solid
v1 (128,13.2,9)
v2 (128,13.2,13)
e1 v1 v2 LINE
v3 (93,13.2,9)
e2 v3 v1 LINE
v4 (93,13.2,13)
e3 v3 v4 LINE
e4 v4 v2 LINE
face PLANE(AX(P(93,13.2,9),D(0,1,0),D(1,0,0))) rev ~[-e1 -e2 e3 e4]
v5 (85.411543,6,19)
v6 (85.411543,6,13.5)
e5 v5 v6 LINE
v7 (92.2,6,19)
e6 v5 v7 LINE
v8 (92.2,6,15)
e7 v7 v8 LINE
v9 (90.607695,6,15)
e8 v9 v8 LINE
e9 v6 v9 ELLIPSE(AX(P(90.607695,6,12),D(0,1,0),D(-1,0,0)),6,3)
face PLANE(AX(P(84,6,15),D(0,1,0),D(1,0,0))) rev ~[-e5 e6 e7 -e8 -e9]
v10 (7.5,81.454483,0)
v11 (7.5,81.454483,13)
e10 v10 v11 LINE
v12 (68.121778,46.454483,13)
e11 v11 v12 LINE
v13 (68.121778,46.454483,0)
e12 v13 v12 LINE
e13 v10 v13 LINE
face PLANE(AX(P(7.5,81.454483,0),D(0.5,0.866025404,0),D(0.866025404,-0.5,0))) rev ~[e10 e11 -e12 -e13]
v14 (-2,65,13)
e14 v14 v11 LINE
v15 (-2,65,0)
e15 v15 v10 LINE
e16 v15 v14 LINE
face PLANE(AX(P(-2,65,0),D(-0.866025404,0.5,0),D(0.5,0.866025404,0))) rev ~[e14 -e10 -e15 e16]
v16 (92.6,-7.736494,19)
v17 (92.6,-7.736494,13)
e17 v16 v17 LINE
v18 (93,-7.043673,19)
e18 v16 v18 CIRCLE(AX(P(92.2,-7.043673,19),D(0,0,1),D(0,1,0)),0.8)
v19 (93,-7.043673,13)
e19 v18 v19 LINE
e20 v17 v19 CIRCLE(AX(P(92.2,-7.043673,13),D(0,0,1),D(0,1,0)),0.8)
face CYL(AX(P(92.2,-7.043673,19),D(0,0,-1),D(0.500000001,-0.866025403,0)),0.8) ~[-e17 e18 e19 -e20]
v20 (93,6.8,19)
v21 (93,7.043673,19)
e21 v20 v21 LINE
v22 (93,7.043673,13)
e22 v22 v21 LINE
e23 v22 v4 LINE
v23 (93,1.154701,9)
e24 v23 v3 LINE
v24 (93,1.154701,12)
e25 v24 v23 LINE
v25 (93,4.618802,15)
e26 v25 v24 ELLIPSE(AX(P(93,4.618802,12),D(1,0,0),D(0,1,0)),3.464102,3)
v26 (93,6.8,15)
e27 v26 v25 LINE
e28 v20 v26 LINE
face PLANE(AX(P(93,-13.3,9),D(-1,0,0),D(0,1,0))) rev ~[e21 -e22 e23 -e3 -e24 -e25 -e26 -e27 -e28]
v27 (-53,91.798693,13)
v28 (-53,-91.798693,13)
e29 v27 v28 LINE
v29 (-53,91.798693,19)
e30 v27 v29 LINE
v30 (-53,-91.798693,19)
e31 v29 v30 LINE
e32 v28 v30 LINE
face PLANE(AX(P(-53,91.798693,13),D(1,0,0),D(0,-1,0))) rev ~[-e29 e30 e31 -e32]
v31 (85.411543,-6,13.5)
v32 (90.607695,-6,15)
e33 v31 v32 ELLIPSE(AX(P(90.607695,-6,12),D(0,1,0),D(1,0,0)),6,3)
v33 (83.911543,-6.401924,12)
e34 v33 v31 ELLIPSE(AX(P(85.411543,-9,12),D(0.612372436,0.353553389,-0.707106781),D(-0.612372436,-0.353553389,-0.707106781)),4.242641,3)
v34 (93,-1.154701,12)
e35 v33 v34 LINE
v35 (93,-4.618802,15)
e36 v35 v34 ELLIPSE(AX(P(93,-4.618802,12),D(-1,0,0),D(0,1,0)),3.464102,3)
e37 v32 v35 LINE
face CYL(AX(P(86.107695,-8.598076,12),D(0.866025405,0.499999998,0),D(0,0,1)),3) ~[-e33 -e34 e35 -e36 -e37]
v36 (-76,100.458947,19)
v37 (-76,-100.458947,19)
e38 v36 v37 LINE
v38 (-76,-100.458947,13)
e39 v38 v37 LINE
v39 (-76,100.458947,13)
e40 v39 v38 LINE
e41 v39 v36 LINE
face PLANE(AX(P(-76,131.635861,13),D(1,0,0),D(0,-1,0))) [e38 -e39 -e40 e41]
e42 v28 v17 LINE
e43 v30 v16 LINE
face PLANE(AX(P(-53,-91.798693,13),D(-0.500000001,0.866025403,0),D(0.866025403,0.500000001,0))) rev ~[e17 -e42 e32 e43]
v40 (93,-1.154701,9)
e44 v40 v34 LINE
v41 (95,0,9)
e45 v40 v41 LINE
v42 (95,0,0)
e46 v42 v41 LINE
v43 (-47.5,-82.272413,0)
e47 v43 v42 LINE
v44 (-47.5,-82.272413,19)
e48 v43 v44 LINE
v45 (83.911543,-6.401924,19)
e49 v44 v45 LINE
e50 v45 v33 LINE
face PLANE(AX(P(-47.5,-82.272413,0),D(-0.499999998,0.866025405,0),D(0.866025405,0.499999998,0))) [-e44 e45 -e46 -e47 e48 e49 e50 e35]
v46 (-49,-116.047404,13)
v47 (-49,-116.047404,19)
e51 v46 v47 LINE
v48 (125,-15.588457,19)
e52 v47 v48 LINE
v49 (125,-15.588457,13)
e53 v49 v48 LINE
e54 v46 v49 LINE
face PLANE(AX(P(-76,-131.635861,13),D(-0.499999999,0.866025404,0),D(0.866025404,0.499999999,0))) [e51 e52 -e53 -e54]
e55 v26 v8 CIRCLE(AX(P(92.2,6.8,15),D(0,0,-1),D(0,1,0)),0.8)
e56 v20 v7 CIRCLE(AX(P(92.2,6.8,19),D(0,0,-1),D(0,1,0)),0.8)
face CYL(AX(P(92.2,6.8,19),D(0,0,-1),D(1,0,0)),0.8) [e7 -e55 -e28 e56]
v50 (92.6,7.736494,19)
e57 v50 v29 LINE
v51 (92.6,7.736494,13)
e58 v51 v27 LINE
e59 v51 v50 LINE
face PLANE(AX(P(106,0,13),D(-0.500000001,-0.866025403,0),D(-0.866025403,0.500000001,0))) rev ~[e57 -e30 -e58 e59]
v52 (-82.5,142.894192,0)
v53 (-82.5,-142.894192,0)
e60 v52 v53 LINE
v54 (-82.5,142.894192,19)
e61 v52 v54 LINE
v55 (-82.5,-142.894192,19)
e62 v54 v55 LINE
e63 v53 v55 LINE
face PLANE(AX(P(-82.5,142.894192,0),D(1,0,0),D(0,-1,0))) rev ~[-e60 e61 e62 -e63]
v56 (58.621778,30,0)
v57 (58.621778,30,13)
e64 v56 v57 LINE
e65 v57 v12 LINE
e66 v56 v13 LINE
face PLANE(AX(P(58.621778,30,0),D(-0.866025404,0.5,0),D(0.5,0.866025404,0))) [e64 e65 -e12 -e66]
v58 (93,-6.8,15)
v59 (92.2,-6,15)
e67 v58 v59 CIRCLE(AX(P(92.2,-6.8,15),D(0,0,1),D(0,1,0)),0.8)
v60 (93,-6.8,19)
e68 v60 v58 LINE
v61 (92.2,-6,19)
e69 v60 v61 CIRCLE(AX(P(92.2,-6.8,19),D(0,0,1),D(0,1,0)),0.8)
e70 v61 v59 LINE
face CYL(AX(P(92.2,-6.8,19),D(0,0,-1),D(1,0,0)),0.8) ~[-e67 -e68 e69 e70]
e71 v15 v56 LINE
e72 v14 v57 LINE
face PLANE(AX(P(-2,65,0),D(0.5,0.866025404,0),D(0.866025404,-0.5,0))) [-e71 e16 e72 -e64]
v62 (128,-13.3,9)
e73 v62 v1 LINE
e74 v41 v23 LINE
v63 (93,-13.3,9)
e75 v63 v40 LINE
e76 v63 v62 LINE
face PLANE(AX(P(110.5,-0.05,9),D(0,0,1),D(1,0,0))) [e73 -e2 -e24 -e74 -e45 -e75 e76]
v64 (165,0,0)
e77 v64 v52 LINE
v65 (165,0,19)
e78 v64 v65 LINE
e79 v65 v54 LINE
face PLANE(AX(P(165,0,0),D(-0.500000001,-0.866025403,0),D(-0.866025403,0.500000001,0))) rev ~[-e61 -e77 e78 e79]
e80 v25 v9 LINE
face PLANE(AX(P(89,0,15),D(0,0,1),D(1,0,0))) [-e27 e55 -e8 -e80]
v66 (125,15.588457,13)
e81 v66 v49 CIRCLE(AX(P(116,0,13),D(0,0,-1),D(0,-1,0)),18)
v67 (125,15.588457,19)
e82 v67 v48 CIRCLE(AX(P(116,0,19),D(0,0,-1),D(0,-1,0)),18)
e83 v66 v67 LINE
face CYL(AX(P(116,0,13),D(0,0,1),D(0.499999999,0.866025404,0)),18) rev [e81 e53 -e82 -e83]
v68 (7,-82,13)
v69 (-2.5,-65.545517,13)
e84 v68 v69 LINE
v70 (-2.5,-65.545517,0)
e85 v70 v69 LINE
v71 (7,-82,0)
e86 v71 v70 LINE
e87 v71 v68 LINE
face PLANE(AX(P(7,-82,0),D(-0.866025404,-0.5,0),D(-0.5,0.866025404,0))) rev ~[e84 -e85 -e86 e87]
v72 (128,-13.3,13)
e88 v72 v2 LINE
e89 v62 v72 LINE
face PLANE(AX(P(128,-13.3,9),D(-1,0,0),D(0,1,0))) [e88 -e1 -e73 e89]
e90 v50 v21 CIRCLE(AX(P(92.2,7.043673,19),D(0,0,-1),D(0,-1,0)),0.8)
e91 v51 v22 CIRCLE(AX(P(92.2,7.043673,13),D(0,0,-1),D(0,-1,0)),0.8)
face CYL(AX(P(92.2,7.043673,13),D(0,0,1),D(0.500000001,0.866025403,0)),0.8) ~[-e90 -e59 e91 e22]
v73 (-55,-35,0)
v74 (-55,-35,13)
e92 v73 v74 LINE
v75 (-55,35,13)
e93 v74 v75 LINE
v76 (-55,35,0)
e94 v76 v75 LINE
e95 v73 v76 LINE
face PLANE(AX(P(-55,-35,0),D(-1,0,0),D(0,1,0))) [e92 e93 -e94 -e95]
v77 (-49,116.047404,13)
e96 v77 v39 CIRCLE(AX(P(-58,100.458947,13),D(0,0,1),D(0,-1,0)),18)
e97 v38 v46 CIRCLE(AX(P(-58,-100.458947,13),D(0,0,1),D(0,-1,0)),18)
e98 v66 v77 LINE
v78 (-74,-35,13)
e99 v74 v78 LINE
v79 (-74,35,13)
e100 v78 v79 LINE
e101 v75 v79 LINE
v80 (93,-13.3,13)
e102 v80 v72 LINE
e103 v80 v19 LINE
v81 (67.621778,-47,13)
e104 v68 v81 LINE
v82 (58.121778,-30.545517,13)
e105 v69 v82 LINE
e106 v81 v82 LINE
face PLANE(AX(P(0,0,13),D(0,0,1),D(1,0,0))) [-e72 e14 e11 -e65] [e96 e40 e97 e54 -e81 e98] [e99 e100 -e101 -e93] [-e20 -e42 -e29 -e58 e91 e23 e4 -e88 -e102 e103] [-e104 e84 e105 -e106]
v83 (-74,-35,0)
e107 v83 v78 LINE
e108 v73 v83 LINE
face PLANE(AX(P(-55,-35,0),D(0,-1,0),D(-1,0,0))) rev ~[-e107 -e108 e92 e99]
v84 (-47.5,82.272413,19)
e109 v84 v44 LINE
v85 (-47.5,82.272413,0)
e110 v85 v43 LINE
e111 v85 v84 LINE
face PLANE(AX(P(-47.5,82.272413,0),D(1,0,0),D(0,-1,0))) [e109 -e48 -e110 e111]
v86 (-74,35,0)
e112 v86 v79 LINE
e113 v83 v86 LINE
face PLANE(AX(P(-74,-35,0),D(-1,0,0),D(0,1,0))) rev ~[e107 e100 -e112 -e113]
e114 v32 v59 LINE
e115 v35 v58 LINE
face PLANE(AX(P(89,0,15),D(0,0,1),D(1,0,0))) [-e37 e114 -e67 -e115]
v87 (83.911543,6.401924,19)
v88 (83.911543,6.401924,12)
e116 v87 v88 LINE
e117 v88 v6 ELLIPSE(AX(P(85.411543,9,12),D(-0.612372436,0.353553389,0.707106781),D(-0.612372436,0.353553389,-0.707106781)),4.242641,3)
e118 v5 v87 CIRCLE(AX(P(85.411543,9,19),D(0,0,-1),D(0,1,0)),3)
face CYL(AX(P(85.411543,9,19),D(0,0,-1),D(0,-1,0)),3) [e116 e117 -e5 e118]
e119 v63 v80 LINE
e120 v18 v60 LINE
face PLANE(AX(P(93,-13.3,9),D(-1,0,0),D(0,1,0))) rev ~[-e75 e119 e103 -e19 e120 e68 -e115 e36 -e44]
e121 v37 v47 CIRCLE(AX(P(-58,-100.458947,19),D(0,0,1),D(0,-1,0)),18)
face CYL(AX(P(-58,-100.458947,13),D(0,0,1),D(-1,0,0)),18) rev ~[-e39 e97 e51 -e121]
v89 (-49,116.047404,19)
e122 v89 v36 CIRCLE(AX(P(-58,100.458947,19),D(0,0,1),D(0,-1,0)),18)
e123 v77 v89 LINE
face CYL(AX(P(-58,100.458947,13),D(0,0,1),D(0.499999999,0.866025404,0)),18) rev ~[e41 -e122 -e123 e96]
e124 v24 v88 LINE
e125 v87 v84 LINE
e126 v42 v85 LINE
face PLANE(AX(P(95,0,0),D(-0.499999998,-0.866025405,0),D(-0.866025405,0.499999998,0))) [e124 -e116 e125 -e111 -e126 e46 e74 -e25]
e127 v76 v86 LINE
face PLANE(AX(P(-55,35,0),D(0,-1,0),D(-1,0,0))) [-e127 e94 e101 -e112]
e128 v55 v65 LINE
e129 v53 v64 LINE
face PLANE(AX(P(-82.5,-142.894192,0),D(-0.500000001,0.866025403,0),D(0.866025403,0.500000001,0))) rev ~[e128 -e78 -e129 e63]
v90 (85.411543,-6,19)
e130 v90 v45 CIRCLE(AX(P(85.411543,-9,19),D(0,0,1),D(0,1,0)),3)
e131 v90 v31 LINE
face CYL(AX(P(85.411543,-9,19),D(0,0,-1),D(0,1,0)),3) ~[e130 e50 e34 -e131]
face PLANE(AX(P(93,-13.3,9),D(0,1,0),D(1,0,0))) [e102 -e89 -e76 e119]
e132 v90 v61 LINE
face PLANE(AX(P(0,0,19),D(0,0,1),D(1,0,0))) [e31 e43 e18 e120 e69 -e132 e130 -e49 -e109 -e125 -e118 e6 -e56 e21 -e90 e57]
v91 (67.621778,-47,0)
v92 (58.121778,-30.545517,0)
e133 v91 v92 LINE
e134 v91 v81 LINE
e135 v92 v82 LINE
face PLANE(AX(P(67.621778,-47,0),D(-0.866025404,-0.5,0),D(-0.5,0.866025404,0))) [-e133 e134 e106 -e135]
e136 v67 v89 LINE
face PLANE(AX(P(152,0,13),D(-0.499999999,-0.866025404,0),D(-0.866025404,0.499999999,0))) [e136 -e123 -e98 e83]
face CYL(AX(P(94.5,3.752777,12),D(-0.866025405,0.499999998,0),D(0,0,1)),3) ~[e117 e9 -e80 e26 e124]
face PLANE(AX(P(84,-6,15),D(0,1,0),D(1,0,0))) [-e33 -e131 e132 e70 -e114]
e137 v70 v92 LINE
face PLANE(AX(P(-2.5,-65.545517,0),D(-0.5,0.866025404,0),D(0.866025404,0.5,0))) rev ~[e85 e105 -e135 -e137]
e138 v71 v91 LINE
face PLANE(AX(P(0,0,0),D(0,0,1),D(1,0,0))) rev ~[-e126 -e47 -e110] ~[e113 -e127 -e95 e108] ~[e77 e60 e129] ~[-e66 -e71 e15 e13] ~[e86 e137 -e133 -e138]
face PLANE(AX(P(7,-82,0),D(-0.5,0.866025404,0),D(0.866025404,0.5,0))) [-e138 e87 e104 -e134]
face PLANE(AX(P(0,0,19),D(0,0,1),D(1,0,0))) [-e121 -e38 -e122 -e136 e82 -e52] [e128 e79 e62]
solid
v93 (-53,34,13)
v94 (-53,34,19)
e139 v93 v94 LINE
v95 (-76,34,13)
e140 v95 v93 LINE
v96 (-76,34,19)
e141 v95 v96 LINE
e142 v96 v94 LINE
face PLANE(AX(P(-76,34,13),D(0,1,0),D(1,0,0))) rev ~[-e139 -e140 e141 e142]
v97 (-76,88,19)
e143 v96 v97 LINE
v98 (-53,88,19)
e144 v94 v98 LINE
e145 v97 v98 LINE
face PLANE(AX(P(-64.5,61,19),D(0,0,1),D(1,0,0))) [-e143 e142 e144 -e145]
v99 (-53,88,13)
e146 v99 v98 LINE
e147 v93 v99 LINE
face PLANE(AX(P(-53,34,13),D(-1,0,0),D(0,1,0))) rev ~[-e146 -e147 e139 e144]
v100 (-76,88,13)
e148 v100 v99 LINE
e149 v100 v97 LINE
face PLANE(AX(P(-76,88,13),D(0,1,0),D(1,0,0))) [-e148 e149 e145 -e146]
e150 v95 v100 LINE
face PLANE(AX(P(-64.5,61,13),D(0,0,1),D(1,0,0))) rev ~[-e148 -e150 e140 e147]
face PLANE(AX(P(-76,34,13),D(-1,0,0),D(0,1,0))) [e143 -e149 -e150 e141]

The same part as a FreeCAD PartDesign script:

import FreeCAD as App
import Part
import Sketcher
Q = App.Units.Quantity


def edges_at(feature, points):
    """Names of the edges that pass closest to the given points."""
    edges = feature.Shape.Edges
    near = lambda p: min(range(len(edges)), key=lambda i: edges[i].distToShape(Part.Vertex(*p))[0])
    return sorted({f"Edge{near(p) + 1}" for p in points})


def add_polygon(sketch, points):
    """Adds a closed chain of lines whose ends are joined by coincident constraints."""
    first, n = sketch.GeometryCount, len(points)
    for a, b in zip(points, points[1:] + points[:1]):
        sketch.addGeometry(Part.LineSegment(App.Vector(*a, 0), App.Vector(*b, 0)), False)
    for i in range(n):
        sketch.addConstraint(Sketcher.Constraint("Coincident", first + i, 2, first + (i + 1) % n, 1))

doc = App.newDocument("Part")
body = doc.addObject("PartDesign::Body", "Body")

sketch1 = body.newObject("Sketcher::SketchObject", "Sketch")
sketch1.AttachmentSupport = (doc.getObject("XY_Plane"), [""])
sketch1.MapMode = "FlatFace"
sketch1.AttachmentOffset = App.Placement(App.Vector(0, 0, 13), App.Rotation())
add_polygon(sketch1, [(-76, 88), (-76, 34), (-53, 34), (-53, 88)])
sketch1.addConstraint([
    Sketcher.Constraint("Vertical", 0),
    Sketcher.Constraint("Horizontal", 1),
    Sketcher.Constraint("Vertical", 2),
    Sketcher.Constraint("Horizontal", 3),
    Sketcher.Constraint("DistanceX", 1, 1, 1, 2, 23.0),
    Sketcher.Constraint("DistanceY", 0, 2, 0, 1, 54.0),
    Sketcher.Constraint("DistanceX", 0, 2, -1, 1, 76.0),
    Sketcher.Constraint("DistanceY", -1, 1, 0, 2, 34.0),
])
pad1 = body.newObject("PartDesign::Pad", "Pad")
pad1.Profile = sketch1
pad1.Length = 6
body2 = doc.addObject("PartDesign::Body", "Body001")

sketch2 = body2.newObject("Sketcher::SketchObject", "Sketch001")
sketch2.AttachmentSupport = (doc.getObject("XY_Plane001"), [""])
sketch2.MapMode = "FlatFace"
sketch2.AttachmentOffset = App.Placement(App.Vector(0, 0, 13), App.Rotation())
add_polygon(sketch2, [(106, 0), (-53, 91.798693), (-53, -91.798693)])
sketch2.addConstraint([
    Sketcher.Constraint("Vertical", 1),
    Sketcher.Constraint("PointOnObject", 2, 2, -1),
    Sketcher.Constraint("Equal", 0, 2),
    Sketcher.Constraint("Angle", 0, Q("150 deg")),
    Sketcher.Constraint("DistanceX", 0, 2, -1, 1, 53.0),
    Sketcher.Constraint("DistanceX", -1, 1, 2, 2, 106.0),
])
pad2 = body2.newObject("PartDesign::Pad", "Pad001")
pad2.Profile = sketch2
pad2.Length = 6
body3 = doc.addObject("PartDesign::Body", "Body002")

sketch3 = body3.newObject("Sketcher::SketchObject", "Sketch002")
sketch3.AttachmentSupport = (doc.getObject("XY_Plane002"), [""])
sketch3.MapMode = "FlatFace"
sketch3.AttachmentOffset = App.Placement(App.Vector(0, 0, 13), App.Rotation())
add_polygon(sketch3, [(152, 0), (-76, 131.635861), (-76, -131.635861)])
sketch3.addConstraint([
    Sketcher.Constraint("Vertical", 1),
    Sketcher.Constraint("PointOnObject", 2, 2, -1),
    Sketcher.Constraint("Equal", 0, 2),
    Sketcher.Constraint("Angle", 0, Q("150 deg")),
    Sketcher.Constraint("DistanceX", 0, 2, -1, 1, 76.0),
    Sketcher.Constraint("DistanceX", -1, 1, 2, 2, 152.0),
])
pad3 = body3.newObject("PartDesign::Pad", "Pad002")
pad3.Profile = sketch3
pad3.Length = 6
doc.recompute()

boolean = body3.newObject("PartDesign::Boolean", "Boolean")
boolean.Type = "Cut"
boolean.addObjects([body2])
body4 = doc.addObject("PartDesign::Body", "Body003")

sketch4 = body4.newObject("Sketcher::SketchObject", "Sketch003")
sketch4.AttachmentSupport = (doc.getObject("XY_Plane003"), [""])
sketch4.MapMode = "FlatFace"
sketch4.AttachmentOffset = App.Placement(App.Vector(0, 0, 15), App.Rotation())
add_polygon(sketch4, [(84, 6), (84, -6), (94, -6), (94, 6)])
sketch4.addConstraint([
    Sketcher.Constraint("Vertical", 0),
    Sketcher.Constraint("Horizontal", 1),
    Sketcher.Constraint("Vertical", 2),
    Sketcher.Constraint("Horizontal", 3),
    Sketcher.Constraint("DistanceX", 1, 1, 1, 2, 10.0),
    Sketcher.Constraint("DistanceY", 0, 2, 0, 1, 12.0),
    Sketcher.Constraint("DistanceX", -1, 1, 0, 2, 84.0),
    Sketcher.Constraint("DistanceY", 0, 2, -1, 1, 6.0),
])
pad4 = body4.newObject("PartDesign::Pad", "Pad003")
pad4.Profile = sketch4
pad4.Length = 4
body5 = doc.addObject("PartDesign::Body", "Body004")

sketch5 = body5.newObject("Sketcher::SketchObject", "Sketch004")
sketch5.AttachmentSupport = (doc.getObject("XY_Plane004"), [""])
sketch5.MapMode = "FlatFace"
sketch5.AttachmentOffset = App.Placement(App.Vector(0, 0, 9), App.Rotation())
add_polygon(sketch5, [(93, 13.2), (93, -13.3), (128, -13.3), (128, 13.2)])
sketch5.addConstraint([
    Sketcher.Constraint("Vertical", 0),
    Sketcher.Constraint("Horizontal", 1),
    Sketcher.Constraint("Vertical", 2),
    Sketcher.Constraint("Horizontal", 3),
    Sketcher.Constraint("DistanceX", 1, 1, 1, 2, 35.0),
    Sketcher.Constraint("DistanceY", 0, 2, 0, 1, 26.5),
    Sketcher.Constraint("DistanceX", -1, 1, 0, 2, 93.0),
    Sketcher.Constraint("DistanceY", 0, 2, -1, 1, 13.3),
])
pad5 = body5.newObject("PartDesign::Pad", "Pad004")
pad5.Profile = sketch5
pad5.Length = 10
body6 = doc.addObject("PartDesign::Body", "Body005")

sketch6 = body6.newObject("Sketcher::SketchObject", "Sketch005")
sketch6.AttachmentSupport = (doc.getObject("XY_Plane005"), [""])
sketch6.MapMode = "FlatFace"
add_polygon(sketch6, [(0, 19), (0, 0), (70, 0), (70, 19)])
sketch6.addConstraint([
    Sketcher.Constraint("Vertical", 0),
    Sketcher.Constraint("Horizontal", 1),
    Sketcher.Constraint("Vertical", 2),
    Sketcher.Constraint("Horizontal", 3),
    Sketcher.Constraint("Coincident", 0, 2, -1, 1),
    Sketcher.Constraint("DistanceX", 1, 1, 1, 2, 70.0),
    Sketcher.Constraint("DistanceY", 0, 2, 0, 1, 19.0),
])
pad6 = body6.newObject("PartDesign::Pad", "Pad005")
pad6.Profile = sketch6
pad6.Length = 19
body7 = doc.addObject("PartDesign::Body", "Body006")
doc.recompute()

body6.Placement = App.Placement(App.Vector(7, -82, 0), App.Rotation(App.Vector(0, 0, 1), 30))
boolean2 = body7.newObject("PartDesign::Boolean", "Boolean001")
boolean2.Type = "Fuse"
boolean2.addObjects([body6])
body8 = doc.addObject("PartDesign::Body", "Body007")

sketch7 = body8.newObject("Sketcher::SketchObject", "Sketch006")
sketch7.AttachmentSupport = (doc.getObject("XY_Plane007"), [""])
sketch7.MapMode = "FlatFace"
add_polygon(sketch7, [(0, 19), (0, 0), (70, 0), (70, 19)])
sketch7.addConstraint([
    Sketcher.Constraint("Vertical", 0),
    Sketcher.Constraint("Horizontal", 1),
    Sketcher.Constraint("Vertical", 2),
    Sketcher.Constraint("Horizontal", 3),
    Sketcher.Constraint("Coincident", 0, 2, -1, 1),
    Sketcher.Constraint("DistanceX", 1, 1, 1, 2, 70.0),
    Sketcher.Constraint("DistanceY", 0, 2, 0, 1, 19.0),
])
pad7 = body8.newObject("PartDesign::Pad", "Pad006")
pad7.Profile = sketch7
pad7.Length = 19
body9 = doc.addObject("PartDesign::Body", "Body008")
doc.recompute()

body8.Placement = App.Placement(App.Vector(-55, -35, 0), App.Rotation(App.Vector(0, 0, 1), 90))
boolean3 = body9.newObject("PartDesign::Boolean", "Boolean002")
boolean3.Type = "Fuse"
boolean3.addObjects([body8])
body10 = doc.addObject("PartDesign::Body", "Body009")

sketch8 = body10.newObject("Sketcher::SketchObject", "Sketch007")
sketch8.AttachmentSupport = (doc.getObject("XY_Plane009"), [""])
sketch8.MapMode = "FlatFace"
add_polygon(sketch8, [(0, 19), (0, 0), (70, 0), (70, 19)])
sketch8.addConstraint([
    Sketcher.Constraint("Vertical", 0),
    Sketcher.Constraint("Horizontal", 1),
    Sketcher.Constraint("Vertical", 2),
    Sketcher.Constraint("Horizontal", 3),
    Sketcher.Constraint("Coincident", 0, 2, -1, 1),
    Sketcher.Constraint("DistanceX", 1, 1, 1, 2, 70.0),
    Sketcher.Constraint("DistanceY", 0, 2, 0, 1, 19.0),
])
pad8 = body10.newObject("PartDesign::Pad", "Pad007")
pad8.Profile = sketch8
pad8.Length = 19
body11 = doc.addObject("PartDesign::Body", "Body010")
doc.recompute()

body10.Placement = App.Placement(App.Vector(-2, 65, 0), App.Rotation(App.Vector(0, 0, -1), 30))
boolean4 = body11.newObject("PartDesign::Boolean", "Boolean003")
boolean4.Type = "Fuse"
boolean4.addObjects([body10])
body12 = doc.addObject("PartDesign::Body", "Body011")

sketch9 = body12.newObject("Sketcher::SketchObject", "Sketch008")
sketch9.AttachmentSupport = (doc.getObject("XY_Plane011"), [""])
sketch9.MapMode = "FlatFace"
add_polygon(sketch9, [(95, 0), (-47.5, 82.272413), (-47.5, -82.272413)])
sketch9.addConstraint([
    Sketcher.Constraint("Vertical", 1),
    Sketcher.Constraint("PointOnObject", 2, 2, -1),
    Sketcher.Constraint("Equal", 0, 2),
    Sketcher.Constraint("Angle", 0, Q("150 deg")),
    Sketcher.Constraint("DistanceX", -1, 1, 2, 2, 95.0),
    Sketcher.Constraint("DistanceX", 0, 2, -1, 1, 47.5),
])
pad9 = body12.newObject("PartDesign::Pad", "Pad008")
pad9.Profile = sketch9
pad9.Length = 19
body13 = doc.addObject("PartDesign::Body", "Body012")

sketch10 = body13.newObject("Sketcher::SketchObject", "Sketch009")
sketch10.AttachmentSupport = (doc.getObject("XY_Plane012"), [""])
sketch10.MapMode = "FlatFace"
add_polygon(sketch10, [(165, 0), (-82.5, 142.894192), (-82.5, -142.894192)])
sketch10.addConstraint([
    Sketcher.Constraint("Vertical", 1),
    Sketcher.Constraint("PointOnObject", 2, 2, -1),
    Sketcher.Constraint("Equal", 0, 2),
    Sketcher.Constraint("Angle", 0, Q("150 deg")),
    Sketcher.Constraint("DistanceX", -1, 1, 2, 2, 165.0),
    Sketcher.Constraint("DistanceX", 0, 2, -1, 1, 82.5),
])
pad10 = body13.newObject("PartDesign::Pad", "Pad009")
pad10.Profile = sketch10
pad10.Length = 19
doc.recompute()

boolean5 = body13.newObject("PartDesign::Boolean", "Boolean004")
boolean5.Type = "Cut"
boolean5.addObjects([body12])
doc.recompute()

boolean6 = body13.newObject("PartDesign::Boolean", "Boolean005")
boolean6.Type = "Cut"
boolean6.addObjects([body11])
doc.recompute()

boolean7 = body13.newObject("PartDesign::Boolean", "Boolean006")
boolean7.Type = "Cut"
boolean7.addObjects([body9])
doc.recompute()

boolean8 = body13.newObject("PartDesign::Boolean", "Boolean007")
boolean8.Type = "Cut"
boolean8.addObjects([body7])
doc.recompute()

boolean9 = body13.newObject("PartDesign::Boolean", "Boolean008")
boolean9.Type = "Cut"
boolean9.addObjects([body5])
doc.recompute()

boolean10 = body13.newObject("PartDesign::Boolean", "Boolean009")
boolean10.Type = "Cut"
boolean10.addObjects([body4])
doc.recompute()

boolean11 = body13.newObject("PartDesign::Boolean", "Boolean010")
boolean11.Type = "Cut"
boolean11.addObjects([body3])
doc.recompute()

fillet = body13.newObject("PartDesign::Fillet", "Fillet")
fillet.Base = (boolean11, edges_at(boolean11, [(-76, 131.636, 16), (-76, -131.636, 16), (152, 0, 16)]))
fillet.Radius = 18
doc.recompute()

fillet2 = body13.newObject("PartDesign::Fillet", "Fillet001")
fillet2.Base = (fillet, edges_at(fillet, [
    (93, 7.506, 16),
    (93, 6, 17),
    (93, -6, 17),
    (93, -7.506, 16),
]))
fillet2.Radius = 0.8
doc.recompute()

fillet3 = body13.newObject("PartDesign::Fillet", "Fillet002")
fillet3.Base = (fillet2, edges_at(fillet2, [
    (88.804, 3.577, 15),
    (84.608, 6, 17),
    (88.804, -3.577, 15),
    (84.608, -6, 17),
]))
fillet3.Radius = 3

doc.recompute()
